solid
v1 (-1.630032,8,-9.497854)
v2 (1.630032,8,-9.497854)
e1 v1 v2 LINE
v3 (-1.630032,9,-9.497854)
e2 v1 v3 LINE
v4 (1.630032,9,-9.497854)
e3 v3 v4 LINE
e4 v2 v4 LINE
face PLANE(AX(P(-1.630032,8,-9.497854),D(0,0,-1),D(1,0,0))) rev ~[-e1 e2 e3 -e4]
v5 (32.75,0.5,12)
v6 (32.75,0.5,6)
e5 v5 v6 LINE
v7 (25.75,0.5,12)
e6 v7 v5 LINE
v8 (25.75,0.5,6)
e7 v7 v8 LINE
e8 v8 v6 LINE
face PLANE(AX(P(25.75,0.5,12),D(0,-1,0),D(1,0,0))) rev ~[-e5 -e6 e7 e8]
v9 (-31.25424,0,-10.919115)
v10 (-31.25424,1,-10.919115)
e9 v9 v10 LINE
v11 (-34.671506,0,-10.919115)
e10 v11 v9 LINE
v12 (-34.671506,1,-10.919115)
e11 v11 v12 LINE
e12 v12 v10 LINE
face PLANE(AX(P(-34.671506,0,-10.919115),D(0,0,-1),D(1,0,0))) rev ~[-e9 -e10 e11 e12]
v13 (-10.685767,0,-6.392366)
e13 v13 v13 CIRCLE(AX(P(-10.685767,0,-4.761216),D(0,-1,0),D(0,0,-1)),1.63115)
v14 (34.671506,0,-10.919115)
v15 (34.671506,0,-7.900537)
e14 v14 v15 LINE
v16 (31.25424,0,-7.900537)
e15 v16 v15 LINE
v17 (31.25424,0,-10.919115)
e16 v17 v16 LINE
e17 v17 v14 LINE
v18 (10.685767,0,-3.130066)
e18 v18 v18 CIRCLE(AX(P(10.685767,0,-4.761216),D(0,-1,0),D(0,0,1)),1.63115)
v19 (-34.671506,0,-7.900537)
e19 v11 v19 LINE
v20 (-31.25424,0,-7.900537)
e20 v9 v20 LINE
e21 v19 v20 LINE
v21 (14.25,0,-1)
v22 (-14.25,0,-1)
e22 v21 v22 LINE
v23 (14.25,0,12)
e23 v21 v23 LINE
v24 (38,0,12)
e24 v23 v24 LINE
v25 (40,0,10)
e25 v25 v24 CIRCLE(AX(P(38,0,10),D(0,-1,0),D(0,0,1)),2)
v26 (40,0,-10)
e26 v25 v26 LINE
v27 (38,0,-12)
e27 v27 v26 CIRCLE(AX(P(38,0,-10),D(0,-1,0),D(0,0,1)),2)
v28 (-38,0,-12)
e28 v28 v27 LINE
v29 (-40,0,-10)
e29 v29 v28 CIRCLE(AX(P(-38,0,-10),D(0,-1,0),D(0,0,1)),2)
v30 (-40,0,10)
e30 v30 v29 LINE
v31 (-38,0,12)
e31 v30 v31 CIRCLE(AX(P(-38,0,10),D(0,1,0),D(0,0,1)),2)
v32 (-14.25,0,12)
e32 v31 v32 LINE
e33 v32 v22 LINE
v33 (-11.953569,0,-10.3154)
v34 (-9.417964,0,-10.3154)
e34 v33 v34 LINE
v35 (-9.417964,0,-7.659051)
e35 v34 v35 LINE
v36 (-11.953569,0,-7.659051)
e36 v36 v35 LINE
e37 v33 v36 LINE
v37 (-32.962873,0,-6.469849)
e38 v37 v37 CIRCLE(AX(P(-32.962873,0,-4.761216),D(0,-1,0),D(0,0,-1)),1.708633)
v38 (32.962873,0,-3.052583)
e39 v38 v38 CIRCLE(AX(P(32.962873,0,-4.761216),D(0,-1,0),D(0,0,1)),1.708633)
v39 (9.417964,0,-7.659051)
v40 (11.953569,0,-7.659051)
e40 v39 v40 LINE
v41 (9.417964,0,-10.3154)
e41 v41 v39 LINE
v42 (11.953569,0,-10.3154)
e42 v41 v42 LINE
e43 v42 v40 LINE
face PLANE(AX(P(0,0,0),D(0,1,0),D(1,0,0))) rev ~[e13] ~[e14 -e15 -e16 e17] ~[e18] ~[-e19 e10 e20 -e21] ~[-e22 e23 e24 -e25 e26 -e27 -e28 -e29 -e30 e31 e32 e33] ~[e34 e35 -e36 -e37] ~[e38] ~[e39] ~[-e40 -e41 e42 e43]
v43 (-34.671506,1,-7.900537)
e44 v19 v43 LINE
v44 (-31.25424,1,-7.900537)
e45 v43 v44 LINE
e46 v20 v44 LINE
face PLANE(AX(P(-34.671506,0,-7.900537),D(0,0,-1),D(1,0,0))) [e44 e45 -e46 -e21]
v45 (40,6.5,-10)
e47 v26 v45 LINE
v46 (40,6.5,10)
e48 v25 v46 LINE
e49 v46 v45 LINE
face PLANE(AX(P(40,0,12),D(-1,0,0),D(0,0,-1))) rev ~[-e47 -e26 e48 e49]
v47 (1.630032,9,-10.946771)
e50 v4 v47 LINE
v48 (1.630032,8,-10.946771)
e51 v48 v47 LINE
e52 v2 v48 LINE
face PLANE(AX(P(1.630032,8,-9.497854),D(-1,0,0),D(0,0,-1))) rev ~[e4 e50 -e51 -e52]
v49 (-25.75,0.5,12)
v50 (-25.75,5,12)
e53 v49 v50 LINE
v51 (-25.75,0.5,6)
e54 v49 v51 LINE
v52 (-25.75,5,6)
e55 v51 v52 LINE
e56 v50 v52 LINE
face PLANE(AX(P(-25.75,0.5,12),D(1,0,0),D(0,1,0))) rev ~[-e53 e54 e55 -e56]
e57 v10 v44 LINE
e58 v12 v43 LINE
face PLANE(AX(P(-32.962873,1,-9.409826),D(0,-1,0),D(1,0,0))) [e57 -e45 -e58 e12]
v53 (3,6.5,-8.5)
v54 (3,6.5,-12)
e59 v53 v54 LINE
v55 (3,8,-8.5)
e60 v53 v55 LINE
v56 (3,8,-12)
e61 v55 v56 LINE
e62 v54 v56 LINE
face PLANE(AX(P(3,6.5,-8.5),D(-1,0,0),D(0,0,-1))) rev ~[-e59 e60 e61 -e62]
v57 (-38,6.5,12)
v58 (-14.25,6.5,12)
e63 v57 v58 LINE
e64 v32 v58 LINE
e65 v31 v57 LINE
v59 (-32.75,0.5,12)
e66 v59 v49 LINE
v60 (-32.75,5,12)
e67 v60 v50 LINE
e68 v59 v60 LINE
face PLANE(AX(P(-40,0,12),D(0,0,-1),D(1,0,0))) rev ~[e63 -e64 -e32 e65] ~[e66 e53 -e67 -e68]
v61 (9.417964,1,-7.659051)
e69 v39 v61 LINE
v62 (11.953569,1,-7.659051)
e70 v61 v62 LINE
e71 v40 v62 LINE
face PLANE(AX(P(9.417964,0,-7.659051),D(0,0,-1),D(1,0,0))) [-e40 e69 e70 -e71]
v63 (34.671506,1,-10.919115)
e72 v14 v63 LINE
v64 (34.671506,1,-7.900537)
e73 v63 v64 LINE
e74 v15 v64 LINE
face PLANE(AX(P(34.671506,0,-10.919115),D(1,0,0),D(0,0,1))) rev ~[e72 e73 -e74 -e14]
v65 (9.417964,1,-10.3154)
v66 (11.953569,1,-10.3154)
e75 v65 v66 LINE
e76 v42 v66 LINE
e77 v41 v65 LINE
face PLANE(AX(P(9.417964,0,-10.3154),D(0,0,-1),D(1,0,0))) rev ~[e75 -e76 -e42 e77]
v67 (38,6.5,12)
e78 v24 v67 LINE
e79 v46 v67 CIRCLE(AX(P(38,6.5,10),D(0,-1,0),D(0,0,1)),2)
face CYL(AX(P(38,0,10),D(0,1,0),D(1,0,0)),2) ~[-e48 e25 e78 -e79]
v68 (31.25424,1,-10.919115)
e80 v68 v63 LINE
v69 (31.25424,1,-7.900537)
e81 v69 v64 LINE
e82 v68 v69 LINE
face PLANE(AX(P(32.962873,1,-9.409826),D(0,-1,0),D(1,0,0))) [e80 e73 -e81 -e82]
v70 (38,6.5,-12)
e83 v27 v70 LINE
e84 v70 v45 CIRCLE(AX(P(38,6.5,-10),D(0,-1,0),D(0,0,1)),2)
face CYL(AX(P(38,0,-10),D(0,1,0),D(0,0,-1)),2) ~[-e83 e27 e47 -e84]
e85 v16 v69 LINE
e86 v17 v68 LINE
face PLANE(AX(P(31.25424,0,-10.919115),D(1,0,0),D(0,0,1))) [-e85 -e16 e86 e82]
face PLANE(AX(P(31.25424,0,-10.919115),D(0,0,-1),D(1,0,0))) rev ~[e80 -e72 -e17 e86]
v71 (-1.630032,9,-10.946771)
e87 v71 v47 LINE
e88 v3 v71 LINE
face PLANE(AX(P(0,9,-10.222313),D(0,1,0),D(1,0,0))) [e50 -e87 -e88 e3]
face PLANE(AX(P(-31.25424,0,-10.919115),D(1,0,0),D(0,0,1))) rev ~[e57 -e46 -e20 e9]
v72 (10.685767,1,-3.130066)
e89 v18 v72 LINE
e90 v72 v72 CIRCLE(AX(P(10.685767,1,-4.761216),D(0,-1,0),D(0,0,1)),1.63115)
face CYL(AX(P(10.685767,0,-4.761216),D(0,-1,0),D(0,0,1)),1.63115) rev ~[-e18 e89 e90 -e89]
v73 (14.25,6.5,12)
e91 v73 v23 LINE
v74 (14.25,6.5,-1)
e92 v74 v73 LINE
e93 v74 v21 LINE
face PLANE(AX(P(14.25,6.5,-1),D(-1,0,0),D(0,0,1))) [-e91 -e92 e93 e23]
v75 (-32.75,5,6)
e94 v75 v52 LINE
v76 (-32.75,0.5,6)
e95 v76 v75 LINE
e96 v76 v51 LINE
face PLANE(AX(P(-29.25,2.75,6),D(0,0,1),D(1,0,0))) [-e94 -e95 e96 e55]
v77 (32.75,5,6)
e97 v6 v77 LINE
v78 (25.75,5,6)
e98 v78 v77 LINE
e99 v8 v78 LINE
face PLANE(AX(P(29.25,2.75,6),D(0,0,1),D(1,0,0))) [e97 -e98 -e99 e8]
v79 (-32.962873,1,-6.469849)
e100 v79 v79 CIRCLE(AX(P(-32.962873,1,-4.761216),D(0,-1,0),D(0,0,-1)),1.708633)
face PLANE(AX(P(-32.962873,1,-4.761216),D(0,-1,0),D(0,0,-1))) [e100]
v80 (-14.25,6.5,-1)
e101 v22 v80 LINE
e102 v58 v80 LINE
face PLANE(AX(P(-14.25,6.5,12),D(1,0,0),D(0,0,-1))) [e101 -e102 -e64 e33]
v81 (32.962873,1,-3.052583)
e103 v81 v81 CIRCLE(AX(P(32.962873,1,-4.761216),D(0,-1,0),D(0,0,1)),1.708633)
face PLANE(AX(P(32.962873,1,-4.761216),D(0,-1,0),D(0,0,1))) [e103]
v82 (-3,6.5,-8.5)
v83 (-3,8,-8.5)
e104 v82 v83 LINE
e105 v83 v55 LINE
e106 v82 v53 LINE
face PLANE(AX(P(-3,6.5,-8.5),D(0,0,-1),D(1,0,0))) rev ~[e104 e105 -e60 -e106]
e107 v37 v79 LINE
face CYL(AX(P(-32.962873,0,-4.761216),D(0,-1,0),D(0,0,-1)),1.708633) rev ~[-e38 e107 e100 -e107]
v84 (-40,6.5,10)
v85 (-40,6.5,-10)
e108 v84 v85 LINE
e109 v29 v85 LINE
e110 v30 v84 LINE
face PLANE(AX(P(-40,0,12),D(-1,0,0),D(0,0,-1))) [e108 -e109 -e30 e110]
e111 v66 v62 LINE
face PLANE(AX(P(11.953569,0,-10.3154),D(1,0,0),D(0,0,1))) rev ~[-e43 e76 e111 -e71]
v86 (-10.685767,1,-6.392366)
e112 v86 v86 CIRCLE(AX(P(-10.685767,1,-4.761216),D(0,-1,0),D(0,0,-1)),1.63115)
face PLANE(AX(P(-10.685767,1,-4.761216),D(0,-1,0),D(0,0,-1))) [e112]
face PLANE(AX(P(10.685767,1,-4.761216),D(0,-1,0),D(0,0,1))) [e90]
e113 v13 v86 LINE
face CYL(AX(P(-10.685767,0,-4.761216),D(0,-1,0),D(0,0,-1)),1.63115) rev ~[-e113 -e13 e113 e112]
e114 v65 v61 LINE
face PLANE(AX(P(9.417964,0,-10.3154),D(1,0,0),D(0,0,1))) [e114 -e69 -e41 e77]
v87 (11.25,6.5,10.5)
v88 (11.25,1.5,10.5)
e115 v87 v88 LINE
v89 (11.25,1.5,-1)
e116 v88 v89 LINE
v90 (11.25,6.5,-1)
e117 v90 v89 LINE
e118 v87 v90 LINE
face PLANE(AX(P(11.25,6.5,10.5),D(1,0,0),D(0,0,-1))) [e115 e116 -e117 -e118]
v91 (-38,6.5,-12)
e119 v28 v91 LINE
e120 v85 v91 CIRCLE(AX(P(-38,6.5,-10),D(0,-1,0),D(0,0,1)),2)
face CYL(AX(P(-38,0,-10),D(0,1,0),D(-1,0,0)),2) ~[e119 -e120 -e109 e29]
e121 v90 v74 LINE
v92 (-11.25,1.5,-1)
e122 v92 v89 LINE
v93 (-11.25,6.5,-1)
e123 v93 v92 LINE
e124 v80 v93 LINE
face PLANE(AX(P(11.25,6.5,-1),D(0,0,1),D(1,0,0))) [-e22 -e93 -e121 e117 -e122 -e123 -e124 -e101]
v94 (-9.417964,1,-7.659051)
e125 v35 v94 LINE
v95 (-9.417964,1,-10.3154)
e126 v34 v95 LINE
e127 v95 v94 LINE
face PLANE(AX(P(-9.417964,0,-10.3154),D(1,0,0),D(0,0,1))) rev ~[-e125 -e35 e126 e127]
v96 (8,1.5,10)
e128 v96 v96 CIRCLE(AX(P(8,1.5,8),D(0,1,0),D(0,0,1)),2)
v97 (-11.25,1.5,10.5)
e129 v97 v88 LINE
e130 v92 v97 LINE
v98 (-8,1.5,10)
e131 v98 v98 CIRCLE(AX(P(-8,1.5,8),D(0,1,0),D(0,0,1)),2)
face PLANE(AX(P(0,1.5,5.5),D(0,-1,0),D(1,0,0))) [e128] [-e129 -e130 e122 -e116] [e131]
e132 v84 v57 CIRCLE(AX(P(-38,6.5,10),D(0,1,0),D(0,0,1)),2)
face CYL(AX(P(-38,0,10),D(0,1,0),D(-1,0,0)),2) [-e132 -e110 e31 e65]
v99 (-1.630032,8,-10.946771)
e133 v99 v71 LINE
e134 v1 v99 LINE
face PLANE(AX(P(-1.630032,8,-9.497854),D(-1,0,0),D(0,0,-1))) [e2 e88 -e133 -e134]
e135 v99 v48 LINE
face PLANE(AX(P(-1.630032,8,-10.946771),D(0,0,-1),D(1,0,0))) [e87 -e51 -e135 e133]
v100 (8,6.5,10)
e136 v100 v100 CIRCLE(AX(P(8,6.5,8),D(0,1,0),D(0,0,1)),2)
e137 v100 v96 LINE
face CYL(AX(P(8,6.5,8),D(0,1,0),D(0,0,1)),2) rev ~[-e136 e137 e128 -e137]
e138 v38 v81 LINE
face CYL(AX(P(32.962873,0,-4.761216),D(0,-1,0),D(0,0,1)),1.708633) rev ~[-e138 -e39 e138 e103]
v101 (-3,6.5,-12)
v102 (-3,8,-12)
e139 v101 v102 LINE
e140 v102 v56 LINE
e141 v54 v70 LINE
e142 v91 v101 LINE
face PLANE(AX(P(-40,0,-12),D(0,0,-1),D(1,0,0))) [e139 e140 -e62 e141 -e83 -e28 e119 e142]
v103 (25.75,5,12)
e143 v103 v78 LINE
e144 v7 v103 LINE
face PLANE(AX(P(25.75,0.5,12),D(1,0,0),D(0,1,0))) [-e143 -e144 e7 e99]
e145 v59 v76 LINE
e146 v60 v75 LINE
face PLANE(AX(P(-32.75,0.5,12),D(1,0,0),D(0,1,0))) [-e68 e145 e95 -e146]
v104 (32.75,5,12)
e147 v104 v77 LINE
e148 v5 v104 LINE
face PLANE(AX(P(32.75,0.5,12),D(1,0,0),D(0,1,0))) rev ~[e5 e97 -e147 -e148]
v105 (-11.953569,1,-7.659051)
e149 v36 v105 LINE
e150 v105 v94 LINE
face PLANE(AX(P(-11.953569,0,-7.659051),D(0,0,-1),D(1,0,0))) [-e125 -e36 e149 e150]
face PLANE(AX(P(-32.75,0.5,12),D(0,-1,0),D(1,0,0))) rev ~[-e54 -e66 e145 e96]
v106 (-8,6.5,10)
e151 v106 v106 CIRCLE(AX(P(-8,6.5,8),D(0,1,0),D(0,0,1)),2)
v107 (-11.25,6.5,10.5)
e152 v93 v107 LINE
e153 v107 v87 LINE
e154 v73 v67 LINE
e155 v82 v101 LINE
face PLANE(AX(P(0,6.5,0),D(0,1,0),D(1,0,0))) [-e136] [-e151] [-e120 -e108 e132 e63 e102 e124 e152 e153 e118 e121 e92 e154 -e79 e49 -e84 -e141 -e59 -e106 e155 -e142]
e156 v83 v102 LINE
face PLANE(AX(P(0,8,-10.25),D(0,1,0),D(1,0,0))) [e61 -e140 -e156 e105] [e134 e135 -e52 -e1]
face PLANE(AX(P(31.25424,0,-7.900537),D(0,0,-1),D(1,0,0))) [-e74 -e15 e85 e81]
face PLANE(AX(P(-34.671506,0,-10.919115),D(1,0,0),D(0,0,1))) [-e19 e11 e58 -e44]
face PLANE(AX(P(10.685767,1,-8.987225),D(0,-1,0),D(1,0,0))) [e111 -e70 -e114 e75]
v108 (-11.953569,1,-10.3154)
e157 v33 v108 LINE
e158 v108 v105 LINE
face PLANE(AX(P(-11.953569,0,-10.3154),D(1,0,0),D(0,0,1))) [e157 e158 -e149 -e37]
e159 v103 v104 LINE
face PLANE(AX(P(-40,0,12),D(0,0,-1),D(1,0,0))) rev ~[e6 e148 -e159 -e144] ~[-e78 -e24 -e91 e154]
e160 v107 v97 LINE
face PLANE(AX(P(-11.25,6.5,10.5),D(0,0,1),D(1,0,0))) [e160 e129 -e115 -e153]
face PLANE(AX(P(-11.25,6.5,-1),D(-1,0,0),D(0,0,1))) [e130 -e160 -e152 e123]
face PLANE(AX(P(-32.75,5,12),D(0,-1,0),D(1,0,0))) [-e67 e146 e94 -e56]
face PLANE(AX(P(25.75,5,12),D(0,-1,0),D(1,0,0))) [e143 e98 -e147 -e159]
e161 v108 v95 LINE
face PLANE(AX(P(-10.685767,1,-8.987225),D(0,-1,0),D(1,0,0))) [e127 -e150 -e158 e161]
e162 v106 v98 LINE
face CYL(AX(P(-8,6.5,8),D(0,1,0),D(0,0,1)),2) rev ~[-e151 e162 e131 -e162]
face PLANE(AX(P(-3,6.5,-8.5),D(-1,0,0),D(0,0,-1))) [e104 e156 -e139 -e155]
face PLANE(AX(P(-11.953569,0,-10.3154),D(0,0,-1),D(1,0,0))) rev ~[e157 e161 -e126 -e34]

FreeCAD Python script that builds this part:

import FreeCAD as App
import Part
import Sketcher
from FreeCAD import Vector
Q = App.Units.Quantity


def edges_at(feature, points):
    """Names of the edges that pass closest to the given points."""
    edges = feature.Shape.Edges
    near = lambda p: min(range(len(edges)), key=lambda i: edges[i].distToShape(Part.Vertex(*p))[0])
    return sorted({f"Edge{near(p) + 1}" for p in points})


def add_polygon(sketch, points):
    """Adds a closed chain of lines whose ends are joined by coincident constraints."""
    first, n = sketch.GeometryCount, len(points)
    for a, b in zip(points, points[1:] + points[:1]):
        sketch.addGeometry(Part.LineSegment(App.Vector(*a, 0), App.Vector(*b, 0)), False)
    for i in range(n):
        sketch.addConstraint(Sketcher.Constraint("Coincident", first + i, 2, first + (i + 1) % n, 1))

doc = App.newDocument("Part")
body = doc.addObject("PartDesign::Body", "Body")

sketch1 = doc.addObject("Sketcher::SketchObject", "Sketch")
body.addObject(sketch1)
sketch1.AttachmentSupport = (doc.XZ_Plane, [""])
sketch1.MapMode = "FlatFace"
add_polygon(sketch1, [(-40, -12), (-40, 12), (40, 12), (40, -12)])
sketch1.addConstraint([
    Sketcher.Constraint("Vertical", 0),
    Sketcher.Constraint("Horizontal", 1),
    Sketcher.Constraint("Vertical", 2),
    Sketcher.Constraint("Horizontal", 3),
    Sketcher.Constraint("Symmetric", 0, 2, 2, 2, -1, 1),
    Sketcher.Constraint("DistanceX", 1, 1, 1, 2, Q("80 mm")),
    Sketcher.Constraint("DistanceY", 0, 1, 0, 2, Q("24 mm")),
])
pad1 = doc.addObject("PartDesign::Pad", "Pad")
body.addObject(pad1)
pad1.Profile = sketch1
pad1.Length = 6.5
pad1.Reversed = True

sketch2 = doc.addObject("Sketcher::SketchObject", "Sketch001")
body.addObject(sketch2)
sketch2.AttachmentSupport = (doc.XZ_Plane, [""])
sketch2.MapMode = "FlatFace"
sketch2.AttachmentOffset = App.Placement(Vector(0, 0, -6.5), App.Rotation())
add_polygon(sketch2, [(-3, -12), (-3, -8.5), (3, -8.5), (3, -12)])
sketch2.addConstraint([
    Sketcher.Constraint("Vertical", 0),
    Sketcher.Constraint("Horizontal", 1),
    Sketcher.Constraint("Vertical", 2),
    Sketcher.Constraint("Horizontal", 3),
    Sketcher.Constraint("DistanceX", 1, 1, 1, 2, Q("6 mm")),
    Sketcher.Constraint("DistanceY", 0, 1, 0, 2, Q("3.5 mm")),
    Sketcher.Constraint("DistanceX", 0, 2, -1, 1, Q("3 mm")),
    Sketcher.Constraint("DistanceY", 2, 2, -1, 1, Q("12 mm")),
])
pad2 = doc.addObject("PartDesign::Pad", "Pad001")
body.addObject(pad2)
pad2.Profile = sketch2
pad2.Length = 1.5
pad2.Reversed = True

sketch3 = doc.addObject("Sketcher::SketchObject", "Sketch002")
body.addObject(sketch3)
sketch3.AttachmentSupport = (doc.XZ_Plane, [""])
sketch3.MapMode = "FlatFace"
sketch3.AttachmentOffset = App.Placement(Vector(0, 0, -8), App.Rotation())
add_polygon(sketch3, [(-1.6, -10.9), (-1.6, -9.5), (1.6, -9.5), (1.6, -10.9)])
sketch3.addConstraint([
    Sketcher.Constraint("Vertical", 0),
    Sketcher.Constraint("Horizontal", 1),
    Sketcher.Constraint("Vertical", 2),
    Sketcher.Constraint("Horizontal", 3),
    Sketcher.Constraint("DistanceX", 1, 1, 1, 2, Q("3.260064 mm")),
    Sketcher.Constraint("DistanceY", 0, 1, 0, 2, Q("1.448917 mm")),
    Sketcher.Constraint("DistanceY", 2, 2, -1, 1, Q("10.946771 mm")),
    Sketcher.Constraint("DistanceX", 0, 2, -1, 1, Q("1.630032 mm")),
])
pad3 = doc.addObject("PartDesign::Pad", "Pad002")
body.addObject(pad3)
pad3.Profile = sketch3
pad3.Length = 1
pad3.Reversed = True

sketch4 = doc.addObject("Sketcher::SketchObject", "Sketch003")
body.addObject(sketch4)
sketch4.AttachmentSupport = (doc.XZ_Plane, [""])
sketch4.MapMode = "FlatFace"
sketch4.AttachmentOffset = App.Placement(Vector(0, 0, -6.5), App.Rotation())
sketch4.addGeometry(Part.Circle(Vector(-8, 8, 0), Vector(0, 0, 1), 2), False)
sketch4.addGeometry(Part.Circle(Vector(8, 8, 0), Vector(0, 0, 1), 2), False)
add_polygon(sketch4, [(-14.2, -1), (-14.2, 12), (14.2, 12), (14.2, -1), (11.2, -1), (11.2, 10.5), (-11.2, 10.5), (-11.2, -1)])
sketch4.addConstraint([
    Sketcher.Constraint("Vertical", 2),
    Sketcher.Constraint("Horizontal", 3),
    Sketcher.Constraint("Vertical", 4),
    Sketcher.Constraint("Horizontal", 5),
    Sketcher.Constraint("Vertical", 6),
    Sketcher.Constraint("Horizontal", 7),
    Sketcher.Constraint("Vertical", 8),
    Sketcher.Constraint("Horizontal", 9),
    Sketcher.Constraint("Equal", 0, 1),
    Sketcher.Constraint("Symmetric", 0, 3, 1, 3, -2),
    Sketcher.Constraint("Symmetric", 5, 2, 8, 2, -2),
    Sketcher.Constraint("Equal", 5, 9),
    Sketcher.Constraint("Diameter", 0, Q("4 mm")),
    Sketcher.Constraint("DistanceX", 5, 2, 5, 1, Q("3 mm")),
    Sketcher.Constraint("DistanceY", 2, 1, 2, 2, Q("13 mm")),
    Sketcher.Constraint("DistanceX", 3, 1, 3, 2, Q("28.5 mm")),
    Sketcher.Constraint("DistanceY", 6, 1, 6, 2, Q("11.5 mm")),
    Sketcher.Constraint("DistanceX", 0, 3, -1, 1, Q("8 mm")),
    Sketcher.Constraint("DistanceY", -1, 1, 0, 3, Q("8 mm")),
    Sketcher.Constraint("DistanceY", -1, 1, 2, 2, Q("12 mm")),
])
pocket1 = doc.addObject("PartDesign::Pocket", "Pocket")
body.addObject(pocket1)
pocket1.Profile = sketch4
pocket1.Type = "ThroughAll"
pocket1.Reversed = True

sketch5 = doc.addObject("Sketcher::SketchObject", "Sketch004")
body.addObject(sketch5)
sketch5.AttachmentSupport = (doc.XY_Plane, [""])
sketch5.MapMode = "FlatFace"
sketch5.AttachmentOffset = App.Placement(Vector(0, 0, 12), App.Rotation())
add_polygon(sketch5, [(-32.8, 5), (-32.8, 0.5), (-25.8, 0.5), (-25.8, 5)])
add_polygon(sketch5, [(25.8, 5), (25.8, 0.5), (32.8, 0.5), (32.8, 5)])
sketch5.addConstraint([
    Sketcher.Constraint("Vertical", 0),
    Sketcher.Constraint("Horizontal", 1),
    Sketcher.Constraint("Vertical", 2),
    Sketcher.Constraint("Horizontal", 3),
    Sketcher.Constraint("Vertical", 4),
    Sketcher.Constraint("Horizontal", 5),
    Sketcher.Constraint("Vertical", 6),
    Sketcher.Constraint("Horizontal", 7),
    Sketcher.Constraint("Symmetric", 1, 2, 4, 2, -2),
    Sketcher.Constraint("Symmetric", 3, 2, 6, 2, -2),
    Sketcher.Constraint("DistanceX", 1, 1, 1, 2, Q("7 mm")),
    Sketcher.Constraint("DistanceY", 0, 2, 0, 1, Q("4.5 mm")),
    Sketcher.Constraint("DistanceY", -1, 1, 2, 2, Q("5 mm")),
    Sketcher.Constraint("DistanceX", 1, 2, 4, 2, Q("51.5 mm")),
])
pocket2 = doc.addObject("PartDesign::Pocket", "Pocket001")
body.addObject(pocket2)
pocket2.Profile = sketch5
pocket2.Length = 6

sketch6 = doc.addObject("Sketcher::SketchObject", "Sketch005")
body.addObject(sketch6)
sketch6.AttachmentSupport = (doc.XZ_Plane, [""])
sketch6.MapMode = "FlatFace"
add_polygon(sketch6, [(-14, 12), (-14, -1), (14, -1), (14, 12)])
sketch6.addConstraint([
    Sketcher.Constraint("Vertical", 0),
    Sketcher.Constraint("Horizontal", 1),
    Sketcher.Constraint("Vertical", 2),
    Sketcher.Constraint("Horizontal", 3),
    Sketcher.Constraint("DistanceY", 0, 2, 0, 1, Q("13 mm")),
    Sketcher.Constraint("DistanceX", 1, 1, 1, 2, Q("28.5 mm")),
    Sketcher.Constraint("DistanceY", 0, 2, -1, 1, Q("1 mm")),
    Sketcher.Constraint("DistanceX", 0, 2, -1, 1, Q("14.25 mm")),
])
pocket3 = doc.addObject("PartDesign::Pocket", "Pocket002")
body.addObject(pocket3)
pocket3.Profile = sketch6
pocket3.Length = 1.5

sketch7 = doc.addObject("Sketcher::SketchObject", "Sketch006")
body.addObject(sketch7)
sketch7.AttachmentSupport = (doc.XZ_Plane, [""])
sketch7.MapMode = "FlatFace"
sketch7.addGeometry(Part.Circle(Vector(-33, -4.8, 0), Vector(0, 0, 1), 1.7), False)
sketch7.addGeometry(Part.Circle(Vector(-10.7, -4.8, 0), Vector(0, 0, 1), 1.6), False)
sketch7.addGeometry(Part.Circle(Vector(10.7, -4.8, 0), Vector(0, 0, 1), 1.6), False)
sketch7.addGeometry(Part.Circle(Vector(33, -4.8, 0), Vector(0, 0, 1), 1.7), False)
add_polygon(sketch7, [(-34.7, -7.9), (-34.7, -10.9), (-31.3, -10.9), (-31.3, -7.9)])
add_polygon(sketch7, [(-12, -7.7), (-12, -10.3), (-9.4, -10.3), (-9.4, -7.7)])
add_polygon(sketch7, [(9.4, -7.7), (9.4, -10.3), (12, -10.3), (12, -7.7)])
add_polygon(sketch7, [(31.3, -7.9), (31.3, -10.9), (34.7, -10.9), (34.7, -7.9)])
sketch7.addConstraint([
    Sketcher.Constraint("Vertical", 4),
    Sketcher.Constraint("Horizontal", 5),
    Sketcher.Constraint("Vertical", 6),
    Sketcher.Constraint("Horizontal", 7),
    Sketcher.Constraint("Vertical", 8),
    Sketcher.Constraint("Horizontal", 9),
    Sketcher.Constraint("Vertical", 10),
    Sketcher.Constraint("Horizontal", 11),
    Sketcher.Constraint("Vertical", 12),
    Sketcher.Constraint("Horizontal", 13),
    Sketcher.Constraint("Vertical", 14),
    Sketcher.Constraint("Horizontal", 15),
    Sketcher.Constraint("Vertical", 16),
    Sketcher.Constraint("Horizontal", 17),
    Sketcher.Constraint("Vertical", 18),
    Sketcher.Constraint("Horizontal", 19),
    Sketcher.Constraint("Equal", 1, 2),
    Sketcher.Constraint("Equal", 0, 3),
    Sketcher.Constraint("Symmetric", 1, 3, 2, 3, -2),
    Sketcher.Constraint("Symmetric", 0, 3, 3, 3, -2),
    Sketcher.Constraint("Symmetric", 9, 2, 12, 2, -2),
    Sketcher.Constraint("Symmetric", 11, 2, 14, 2, -2),
    Sketcher.Constraint("Symmetric", 5, 2, 16, 2, -2),
    Sketcher.Constraint("Symmetric", 7, 2, 18, 2, -2),
    Sketcher.Constraint("Horizontal", 0, 3, 1, 3),
    Sketcher.Constraint("Diameter", 1, Q("3.2623 mm")),
    Sketcher.Constraint("Diameter", 0, Q("3.417265 mm")),
    Sketcher.Constraint("DistanceY", 4, 2, 4, 1, Q("3.018578 mm")),
    Sketcher.Constraint("DistanceY", 8, 2, 8, 1, Q("2.656349 mm")),
    Sketcher.Constraint("DistanceY", 8, 2, -1, 1, Q("10.3154 mm")),
    Sketcher.Constraint("DistanceY", 4, 2, 0, 3, Q("6.157899 mm")),
    Sketcher.Constraint("DistanceX", 5, 1, 5, 2, Q("3.417265 mm")),
    Sketcher.Constraint("DistanceX", 9, 1, 9, 2, Q("2.535606 mm")),
    Sketcher.Constraint("DistanceX", 5, 2, -1, 1, Q("31.25424 mm")),
    Sketcher.Constraint("DistanceX", 8, 2, -1, 1, Q("11.953569 mm")),
    Sketcher.Constraint("DistanceX", 0, 3, 2, 3, Q("43.64864 mm")),
    Sketcher.Constraint("DistanceX", 4, 2, 1, 3, Q("23.985739 mm")),
    Sketcher.Constraint("DistanceY", 0, 3, -1, 1, Q("4.761216 mm")),
])
pocket4 = doc.addObject("PartDesign::Pocket", "Pocket003")
body.addObject(pocket4)
pocket4.Profile = sketch7
pocket4.Length = 1
doc.recompute()

fillet = doc.addObject("PartDesign::Fillet", "Fillet")
body.addObject(fillet)
fillet.Base = (pocket4, edges_at(pocket4, [
    (40, 3.25, 12),
    (-40, 3.25, 12),
    (-40, 3.25, -12),
    (40, 3.25, -12),
]))
fillet.Radius = 2

doc.recompute()
